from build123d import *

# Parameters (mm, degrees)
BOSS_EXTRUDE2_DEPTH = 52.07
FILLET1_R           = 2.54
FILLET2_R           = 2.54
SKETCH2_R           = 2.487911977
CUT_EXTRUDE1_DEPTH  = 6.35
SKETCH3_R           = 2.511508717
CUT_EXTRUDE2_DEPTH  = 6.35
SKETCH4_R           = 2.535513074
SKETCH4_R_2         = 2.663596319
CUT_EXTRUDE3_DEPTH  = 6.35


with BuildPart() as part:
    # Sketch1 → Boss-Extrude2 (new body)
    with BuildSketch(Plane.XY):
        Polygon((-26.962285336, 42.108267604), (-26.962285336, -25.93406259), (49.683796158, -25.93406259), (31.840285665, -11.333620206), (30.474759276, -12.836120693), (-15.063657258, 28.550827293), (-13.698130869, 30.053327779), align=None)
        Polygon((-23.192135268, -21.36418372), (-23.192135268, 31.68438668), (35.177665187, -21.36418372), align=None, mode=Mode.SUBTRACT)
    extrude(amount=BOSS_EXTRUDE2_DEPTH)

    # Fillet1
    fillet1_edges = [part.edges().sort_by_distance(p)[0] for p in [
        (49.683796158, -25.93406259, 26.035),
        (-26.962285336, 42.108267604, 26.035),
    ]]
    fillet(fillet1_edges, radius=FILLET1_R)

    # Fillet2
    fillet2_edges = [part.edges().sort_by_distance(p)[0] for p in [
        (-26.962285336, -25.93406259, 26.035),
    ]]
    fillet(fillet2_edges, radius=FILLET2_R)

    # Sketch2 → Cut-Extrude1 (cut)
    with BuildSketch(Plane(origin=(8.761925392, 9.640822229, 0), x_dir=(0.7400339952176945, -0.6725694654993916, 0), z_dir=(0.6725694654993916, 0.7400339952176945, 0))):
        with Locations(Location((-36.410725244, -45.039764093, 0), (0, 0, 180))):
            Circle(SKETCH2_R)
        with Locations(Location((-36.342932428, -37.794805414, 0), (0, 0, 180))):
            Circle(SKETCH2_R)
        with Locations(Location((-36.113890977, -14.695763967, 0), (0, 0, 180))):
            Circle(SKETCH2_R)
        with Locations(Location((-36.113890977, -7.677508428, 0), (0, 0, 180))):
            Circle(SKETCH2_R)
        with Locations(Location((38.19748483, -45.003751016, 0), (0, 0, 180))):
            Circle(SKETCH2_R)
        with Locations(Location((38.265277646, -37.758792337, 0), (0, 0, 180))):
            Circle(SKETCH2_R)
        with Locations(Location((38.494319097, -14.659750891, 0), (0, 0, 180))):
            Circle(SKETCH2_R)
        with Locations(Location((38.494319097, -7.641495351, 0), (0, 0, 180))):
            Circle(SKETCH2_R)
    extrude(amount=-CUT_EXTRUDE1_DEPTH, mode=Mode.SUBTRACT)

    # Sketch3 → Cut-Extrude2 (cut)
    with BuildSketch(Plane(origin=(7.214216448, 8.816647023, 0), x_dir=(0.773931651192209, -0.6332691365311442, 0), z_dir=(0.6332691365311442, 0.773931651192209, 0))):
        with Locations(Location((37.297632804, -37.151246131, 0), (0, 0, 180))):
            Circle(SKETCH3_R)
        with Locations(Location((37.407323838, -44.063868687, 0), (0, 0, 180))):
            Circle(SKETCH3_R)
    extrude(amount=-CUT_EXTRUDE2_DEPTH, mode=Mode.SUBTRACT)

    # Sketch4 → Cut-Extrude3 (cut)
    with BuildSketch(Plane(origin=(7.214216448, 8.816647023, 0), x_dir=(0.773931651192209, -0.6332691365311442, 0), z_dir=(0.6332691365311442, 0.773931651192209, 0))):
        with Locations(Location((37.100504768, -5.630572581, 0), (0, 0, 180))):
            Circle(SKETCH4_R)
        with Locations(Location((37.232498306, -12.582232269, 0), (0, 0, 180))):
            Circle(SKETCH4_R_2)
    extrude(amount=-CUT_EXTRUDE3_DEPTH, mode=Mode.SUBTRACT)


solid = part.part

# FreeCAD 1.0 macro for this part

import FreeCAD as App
import Part
import Sketcher
Q = App.Units.Quantity


def edges_at(feature, points):
    """Names of the edges that pass closest to the given points."""
    edges = feature.Shape.Edges
    near = lambda p: min(range(len(edges)), key=lambda i: edges[i].distToShape(Part.Vertex(*p))[0])
    return sorted({f"Edge{near(p) + 1}" for p in points})

doc = App.newDocument("Part")
body = doc.addObject("PartDesign::Body", "Body")

sketch1 = doc.addObject("Sketcher::SketchObject", "Sketch")
body.addObject(sketch1)
sketch1.AttachmentSupport = (doc.XY_Plane, [""])
sketch1.MapMode = "FlatFace"
sketch1.addGeometry([
    Part.LineSegment(App.Vector(-27, 42.1, 0), App.Vector(-27, -25.9, 0)),
    Part.LineSegment(App.Vector(-27, -25.9, 0), App.Vector(49.7, -25.9, 0)),
    Part.LineSegment(App.Vector(49.7, -25.9, 0), App.Vector(31.8, -11.3, 0)),
    Part.LineSegment(App.Vector(31.8, -11.3, 0), App.Vector(30.5, -12.8, 0)),
    Part.LineSegment(App.Vector(30.5, -12.8, 0), App.Vector(-15.1, 28.6, 0)),
    Part.LineSegment(App.Vector(-15.1, 28.6, 0), App.Vector(-13.7, 30.1, 0)),
    Part.LineSegment(App.Vector(-13.7, 30.1, 0), App.Vector(-27, 42.1, 0)),
    Part.LineSegment(App.Vector(35.2, -21.4, 0), App.Vector(-23.2, -21.4, 0)),
    Part.LineSegment(App.Vector(-23.2, -21.4, 0), App.Vector(-23.2, 31.7, 0)),
    Part.LineSegment(App.Vector(-23.2, 31.7, 0), App.Vector(35.2, -21.4, 0)),
], False)
sketch1.addConstraint([
    Sketcher.Constraint("Coincident", 0, 2, 1, 1),
    Sketcher.Constraint("Coincident", 1, 2, 2, 1),
    Sketcher.Constraint("Coincident", 2, 2, 3, 1),
    Sketcher.Constraint("Coincident", 3, 2, 4, 1),
    Sketcher.Constraint("Coincident", 4, 2, 5, 1),
    Sketcher.Constraint("Coincident", 5, 2, 6, 1),
    Sketcher.Constraint("Coincident", 6, 2, 0, 1),
    Sketcher.Constraint("Coincident", 7, 2, 8, 1),
    Sketcher.Constraint("Coincident", 8, 2, 9, 1),
    Sketcher.Constraint("Coincident", 9, 2, 7, 1),
    Sketcher.Constraint("Vertical", 0),
    Sketcher.Constraint("Horizontal", 1),
    Sketcher.Constraint("Horizontal", 7),
    Sketcher.Constraint("Vertical", 8),
    Sketcher.Constraint("Perpendicular", 3, 4),
    Sketcher.Constraint("Perpendicular", 4, 5),
    Sketcher.Constraint("Perpendicular", 5, 6),
    Sketcher.Constraint("Parallel", 6, 9),
    Sketcher.Constraint("Equal", 3, 5),
    Sketcher.Constraint("DistanceX", 7, 2, 7, 1, Q("58.3698 mm")),
    Sketcher.Constraint("DistanceX", 1, 1, 1, 2, Q("76.646081 mm")),
    Sketcher.Constraint("DistanceY", 0, 2, 0, 1, Q("68.04233 mm")),
    Sketcher.Constraint("DistanceY", 8, 1, 8, 2, Q("53.04857 mm")),
    Sketcher.Constraint("DistanceY", 3, 2, 2, 2, Q("1.5025 mm")),
    Sketcher.Constraint("Distance", 6, Q("17.92371 mm")),
    Sketcher.Constraint("DistanceY", 2, 2, -1, 1, Q("11.33362 mm")),
    Sketcher.Constraint("DistanceX", -1, 1, 3, 2, Q("30.474759 mm")),
    Sketcher.Constraint("DistanceX", 5, 2, -1, 1, Q("13.698131 mm")),
    Sketcher.Constraint("DistanceX", 0, 2, 7, 2, Q("3.77015 mm")),
    Sketcher.Constraint("DistanceY", 0, 2, 7, 2, Q("4.569879 mm")),
])
pad1 = doc.addObject("PartDesign::Pad", "Pad")
body.addObject(pad1)
pad1.Profile = sketch1
pad1.Length = Q("2.05 in")
doc.recompute()

fillet = doc.addObject("PartDesign::Fillet", "Fillet")
body.addObject(fillet)
fillet.Base = (pad1, edges_at(pad1, [(49.684, -25.934, 26.035), (-26.962, 42.108, 26.035)]))
fillet.Radius = Q("0.1 in")
doc.recompute()

fillet2 = doc.addObject("PartDesign::Fillet", "Fillet001")
body.addObject(fillet2)
fillet2.Base = (fillet, edges_at(fillet, [(-26.962, -25.934, 26.035)]))
fillet2.Radius = Q("0.1 in")

sketch2 = doc.addObject("Sketcher::SketchObject", "Sketch001")
body.addObject(sketch2)
sketch2.Placement = App.Placement(App.Vector(8.761925, 9.640822, 0), App.Rotation(App.Vector(0.740033995, -0.672569465, 0), App.Vector(0, 0, -0.999999999), App.Vector(0.672569465, 0.740033995, 0), "ZXY"))
sketch2.addGeometry([
    Part.Circle(App.Vector(-36.4, -45, 0), App.Vector(0, 0, 1), 2.5),
    Part.Circle(App.Vector(-36.3, -37.8, 0), App.Vector(0, 0, 1), 2.5),
    Part.Circle(App.Vector(-36.1, -14.7, 0), App.Vector(0, 0, 1), 2.5),
    Part.Circle(App.Vector(-36.1, -7.7, 0), App.Vector(0, 0, 1), 2.5),
    Part.Circle(App.Vector(38.2, -45, 0), App.Vector(0, 0, 1), 2.5),
    Part.Circle(App.Vector(38.3, -37.8, 0), App.Vector(0, 0, 1), 2.5),
    Part.Circle(App.Vector(38.5, -14.7, 0), App.Vector(0, 0, 1), 2.5),
    Part.Circle(App.Vector(38.5, -7.6, 0), App.Vector(0, 0, 1), 2.5),
], False)
sketch2.addConstraint([
    Sketcher.Constraint("Equal", 0, 1),
    Sketcher.Constraint("Equal", 1, 2),
    Sketcher.Constraint("Equal", 2, 3),
    Sketcher.Constraint("Equal", 3, 4),
    Sketcher.Constraint("Equal", 4, 5),
    Sketcher.Constraint("Equal", 5, 6),
    Sketcher.Constraint("Equal", 6, 7),
    Sketcher.Constraint("Vertical", 2, 3, 3, 3),
    Sketcher.Constraint("Vertical", 6, 3, 7, 3),
    Sketcher.Constraint("DistanceX", 0, 3, 5, 3, Q("2.9400001 in")),
    Sketcher.Constraint("Diameter", 0, Q("4.975824 mm")),
    Sketcher.Constraint("DistanceY", 0, 3, 2, 3, Q("30.344 mm")),
    Sketcher.Constraint("DistanceY", 4, 3, 6, 3, Q("30.344 mm")),
    Sketcher.Constraint("DistanceX", 2, 3, -1, 1, Q("36.113891 mm")),
    Sketcher.Constraint("DistanceY", 3, 3, -1, 1, Q("7.677508 mm")),
    Sketcher.Constraint("DistanceY", 4, 3, -1, 1, Q("45.003751 mm")),
    Sketcher.Constraint("DistanceX", -1, 1, 6, 3, Q("38.494319 mm")),
    Sketcher.Constraint("DistanceY", 0, 3, 1, 3, Q("7.244959 mm")),
    Sketcher.Constraint("DistanceX", 1, 3, 2, 3, Q("0.229041 mm")),
    Sketcher.Constraint("DistanceX", 0, 3, 4, 3, Q("74.60821 mm")),
    Sketcher.Constraint("DistanceY", 4, 3, 5, 3, Q("7.244959 mm")),
    Sketcher.Constraint("DistanceX", 1, 3, 5, 3, Q("74.60821 mm")),
    Sketcher.Constraint("DistanceY", 0, 3, 5, 3, Q("7.280972 mm")),
    Sketcher.Constraint("DistanceY", 2, 3, 7, 3, Q("7.054269 mm")),
])
pocket1 = doc.addObject("PartDesign::Pocket", "Pocket")
body.addObject(pocket1)
pocket1.Profile = sketch2
pocket1.Length = Q("0.25 in")

sketch3 = doc.addObject("Sketcher::SketchObject", "Sketch002")
body.addObject(sketch3)
sketch3.Placement = App.Placement(App.Vector(7.214216, 8.816647, 0), App.Rotation(App.Vector(0.773931651, -0.633269137, 0), App.Vector(0, 0, -1), App.Vector(0.633269137, 0.773931651, 0), "ZXY"))
sketch3.addGeometry([
    Part.Circle(App.Vector(37.3, -37.2, 0), App.Vector(0, 0, 1), 2.5),
    Part.Circle(App.Vector(37.4, -44.1, 0), App.Vector(0, 0, 1), 2.5),
], False)
sketch3.addConstraint([
    Sketcher.Constraint("Equal", 0, 1),
    Sketcher.Constraint("Diameter", 0, Q("5.023017 mm")),
    Sketcher.Constraint("DistanceY", 1, 3, -1, 1, Q("44.063869 mm")),
    Sketcher.Constraint("DistanceX", 0, 3, 1, 3, Q("0.109691 mm")),
    Sketcher.Constraint("DistanceX", -1, 1, 0, 3, Q("37.297633 mm")),
    Sketcher.Constraint("DistanceY", 0, 3, -1, 1, Q("37.151246 mm")),
])
pocket2 = doc.addObject("PartDesign::Pocket", "Pocket001")
body.addObject(pocket2)
pocket2.Profile = sketch3
pocket2.Length = Q("0.25 in")

sketch4 = doc.addObject("Sketcher::SketchObject", "Sketch003")
body.addObject(sketch4)
sketch4.Placement = App.Placement(App.Vector(7.214216, 8.816647, 0), App.Rotation(App.Vector(0.773931651, -0.633269137, 0), App.Vector(0, 0, -1), App.Vector(0.633269137, 0.773931651, 0), "ZXY"))
sketch4.addGeometry([
    Part.Circle(App.Vector(37.1, -5.6, 0), App.Vector(0, 0, 1), 2.5),
    Part.Circle(App.Vector(37.2, -12.6, 0), App.Vector(0, 0, 1), 2.7),
], False)
sketch4.addConstraint([
    Sketcher.Constraint("Diameter", 0, Q("5.071026 mm")),
    Sketcher.Constraint("Diameter", 1, Q("5.327193 mm")),
    Sketcher.Constraint("DistanceX", -1, 1, 1, 3, Q("37.232498 mm")),
    Sketcher.Constraint("DistanceY", 1, 3, 0, 3, Q("6.95166 mm")),
    Sketcher.Constraint("DistanceX", -1, 1, 0, 3, Q("37.100505 mm")),
    Sketcher.Constraint("DistanceY", 0, 3, -1, 1, Q("5.630573 mm")),
])
pocket3 = doc.addObject("PartDesign::Pocket", "Pocket002")
body.addObject(pocket3)
pocket3.Profile = sketch4
pocket3.Length = Q("0.25 in")

doc.recompute()
